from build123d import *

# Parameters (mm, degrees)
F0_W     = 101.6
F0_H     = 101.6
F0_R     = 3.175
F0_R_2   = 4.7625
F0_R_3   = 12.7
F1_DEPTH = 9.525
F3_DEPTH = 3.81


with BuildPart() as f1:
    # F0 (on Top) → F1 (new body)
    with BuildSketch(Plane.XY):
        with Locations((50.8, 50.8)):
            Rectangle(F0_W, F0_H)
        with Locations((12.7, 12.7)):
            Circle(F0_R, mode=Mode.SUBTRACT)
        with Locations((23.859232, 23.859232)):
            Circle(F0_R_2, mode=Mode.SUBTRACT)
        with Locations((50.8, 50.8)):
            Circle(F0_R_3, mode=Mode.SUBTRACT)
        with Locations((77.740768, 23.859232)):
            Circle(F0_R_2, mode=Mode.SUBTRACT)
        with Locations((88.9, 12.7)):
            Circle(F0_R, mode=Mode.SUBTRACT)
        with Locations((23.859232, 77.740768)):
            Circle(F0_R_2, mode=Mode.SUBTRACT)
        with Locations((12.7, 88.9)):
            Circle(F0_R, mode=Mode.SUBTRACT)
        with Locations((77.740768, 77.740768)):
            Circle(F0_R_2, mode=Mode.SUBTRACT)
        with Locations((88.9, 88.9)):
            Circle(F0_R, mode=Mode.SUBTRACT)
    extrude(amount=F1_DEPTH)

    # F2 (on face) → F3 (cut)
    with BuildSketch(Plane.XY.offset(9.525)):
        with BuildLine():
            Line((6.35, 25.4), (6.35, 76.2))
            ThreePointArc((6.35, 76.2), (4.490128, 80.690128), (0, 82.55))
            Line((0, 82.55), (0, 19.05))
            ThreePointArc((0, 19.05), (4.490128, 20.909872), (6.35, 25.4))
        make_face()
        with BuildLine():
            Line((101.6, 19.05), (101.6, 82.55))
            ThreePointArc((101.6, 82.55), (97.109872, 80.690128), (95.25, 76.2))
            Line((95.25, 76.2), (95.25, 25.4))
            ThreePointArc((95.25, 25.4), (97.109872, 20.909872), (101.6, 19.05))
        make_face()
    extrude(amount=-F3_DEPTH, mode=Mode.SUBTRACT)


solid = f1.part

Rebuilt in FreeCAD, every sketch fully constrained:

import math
import FreeCAD as App
import Part
import Sketcher
from FreeCAD import Vector
Q = App.Units.Quantity

doc = App.newDocument("Part")
params = doc.addObject("Spreadsheet::Sheet", "Params")
for row, (alias, value) in enumerate([
    ("sketch1_diameter", "1 in"),
    ("sketch1_diameter2", "0.25 in"),
    ("sketch1_width", "4 in"),
    ("sketch1_diameter3", "0.375 in"),
    ("pad1_length", "0.375 in"),
    ("sketch2_height", "2 in"),
    ("sketch2_radius", "0.25 in"),
    ("pocket1_length", "0.15 in"),
], start=1):
    params.set(f"A{row}", alias)
    params.set(f"B{row}", "=" + value)
    params.setAlias(f"B{row}", alias)

body = doc.addObject("PartDesign::Body", "Body")

# Sketch on XY plane
sketch1 = doc.addObject("Sketcher::SketchObject", "Sketch")
body.addObject(sketch1)
sketch1.AttachmentSupport = (doc.XY_Plane, [""])
sketch1.MapMode = "FlatFace"
sketch1.addGeometry([
    Part.LineSegment(Vector(0, 101.6, 0), Vector(0, 0, 0)),  # 0
    Part.LineSegment(Vector(0, 0, 0), Vector(101.6, 0, 0)),  # 1
    Part.LineSegment(Vector(101.6, 0, 0), Vector(101.6, 101.6, 0)),  # 2
    Part.LineSegment(Vector(101.6, 101.6, 0), Vector(0, 101.6, 0)),  # 3
    Part.Circle(Vector(12.7, 12.7, 0), Vector(0, 0, 1), 3.2),  # 4
    Part.Circle(Vector(23.9, 23.9, 0), Vector(0, 0, 1), 4.8),  # 5
    Part.Circle(Vector(50.8, 50.8, 0), Vector(0, 0, 1), 12.7),  # 6
    Part.Circle(Vector(88.9, 12.7, 0), Vector(0, 0, 1), 3.2),  # 7
    Part.Circle(Vector(77.7, 23.9, 0), Vector(0, 0, 1), 4.8),  # 8
    Part.Circle(Vector(23.9, 77.7, 0), Vector(0, 0, 1), 4.8),  # 9
    Part.Circle(Vector(12.7, 88.9, 0), Vector(0, 0, 1), 3.2),  # 10
    Part.Circle(Vector(77.7, 77.7, 0), Vector(0, 0, 1), 4.8),  # 11
    Part.Circle(Vector(88.9, 88.9, 0), Vector(0, 0, 1), 3.2),  # 12
], False)
sketch1.addConstraint([
    Sketcher.Constraint("Coincident", 0, 2, 1, 1),
    Sketcher.Constraint("Coincident", 1, 2, 2, 1),
    Sketcher.Constraint("Coincident", 2, 2, 3, 1),
    Sketcher.Constraint("Coincident", 3, 2, 0, 1),
    Sketcher.Constraint("Vertical", 0),
    Sketcher.Constraint("Horizontal", 1),
    Sketcher.Constraint("Vertical", 2),
    Sketcher.Constraint("Horizontal", 3),
    Sketcher.Constraint("Coincident", 0, 2, -1, 1),
    Sketcher.Constraint("Equal", 4, 7),
    Sketcher.Constraint("Equal", 5, 8),
    Sketcher.Constraint("Equal", 8, 9),
    Sketcher.Constraint("Equal", 7, 10),
    Sketcher.Constraint("Equal", 9, 11),
    Sketcher.Constraint("Equal", 10, 12),
    Sketcher.Constraint("Horizontal", 4, 3, 7, 3),
    Sketcher.Constraint("Horizontal", 5, 3, 8, 3),
    Sketcher.Constraint("Horizontal", 9, 3, 11, 3),
    Sketcher.Constraint("Horizontal", 10, 3, 12, 3),
    Sketcher.Constraint("Vertical", 5, 3, 9, 3),
    Sketcher.Constraint("Vertical", 4, 3, 10, 3),
    Sketcher.Constraint("Vertical", 8, 3, 11, 3),
    Sketcher.Constraint("Vertical", 7, 3, 12, 3),
    Sketcher.Constraint("Equal", 3, 0),
    Sketcher.Constraint("Diameter", 6, Q("1 in")),
    Sketcher.Constraint("Diameter", 4, Q("0.25 in")),
    Sketcher.Constraint("DistanceX", 1, 1, 1, 2, Q("4 in")),
    Sketcher.Constraint("Diameter", 5, Q("0.375 in")),
    Sketcher.Constraint("DistanceX", -1, 1, 6, 3, Q("2 in")),
    Sketcher.Constraint("DistanceY", -1, 1, 6, 3, Q("2 in")),
    Sketcher.Constraint("DistanceX", 4, 3, 7, 3, Q("3 in")),
    Sketcher.Constraint("DistanceY", 4, 3, 10, 3, Q("3 in")),
    Sketcher.Constraint("DistanceX", -1, 1, 4, 3, Q("0.5 in")),
    Sketcher.Constraint("DistanceY", -1, 1, 4, 3, Q("0.5 in")),
    Sketcher.Constraint("DistanceX", -1, 1, 5, 3, Q("23.859232 mm")),
    Sketcher.Constraint("DistanceY", -1, 1, 5, 3, Q("23.859232 mm")),
    Sketcher.Constraint("DistanceX", -1, 1, 8, 3, Q("77.740768 mm")),
    Sketcher.Constraint("DistanceY", -1, 1, 9, 3, Q("77.740768 mm")),
])
sketch1.setExpression("Constraints[24]", "Params.sketch1_diameter")
sketch1.setExpression("Constraints[25]", "Params.sketch1_diameter2")
sketch1.setExpression("Constraints[26]", "Params.sketch1_width")
sketch1.setExpression("Constraints[27]", "Params.sketch1_diameter3")
pad1 = doc.addObject("PartDesign::Pad", "Pad")
body.addObject(pad1)
pad1.Profile = sketch1
pad1.setExpression("Length", "Params.pad1_length")

# Sketch on XY plane
sketch2 = doc.addObject("Sketcher::SketchObject", "Sketch001")
body.addObject(sketch2)
sketch2.AttachmentSupport = (doc.XY_Plane, [""])
sketch2.MapMode = "FlatFace"
sketch2.AttachmentOffset = App.Placement(Vector(0, 0, 0.375 * 25.4), App.Rotation())
sketch2.addGeometry([
    Part.LineSegment(Vector(6, 25, 0), Vector(6, 76, 0)),  # 0
    Part.ArcOfCircle(Part.Circle(Vector(0, 76, 0), Vector(0, 0, 1), 6), math.radians(0), math.radians(90)),  # 1
    Part.LineSegment(Vector(0, 83, 0), Vector(0, 19, 0)),  # 2
    Part.ArcOfCircle(Part.Circle(Vector(0, 25, 0), Vector(0, 0, 1), 6), math.radians(-90), math.radians(0)),  # 3
    Part.LineSegment(Vector(102, 19, 0), Vector(102, 83, 0)),  # 4
    Part.ArcOfCircle(Part.Circle(Vector(102, 76, 0), Vector(0, 0, 1), 6), math.radians(90), math.radians(180)),  # 5
    Part.LineSegment(Vector(95, 76, 0), Vector(95, 25, 0)),  # 6
    Part.ArcOfCircle(Part.Circle(Vector(102, 25, 0), Vector(0, 0, 1), 6), math.radians(-180), math.radians(-90)),  # 7
], False)
sketch2.addConstraint([
    Sketcher.Constraint("Tangent", 0, 2, 1, 1),
    Sketcher.Constraint("Coincident", 1, 2, 2, 1),
    Sketcher.Constraint("Coincident", 2, 2, 3, 1),
    Sketcher.Constraint("Tangent", 3, 2, 0, 1),
    Sketcher.Constraint("Coincident", 4, 2, 5, 1),
    Sketcher.Constraint("Tangent", 5, 2, 6, 1),
    Sketcher.Constraint("Tangent", 6, 2, 7, 1),
    Sketcher.Constraint("Coincident", 7, 2, 4, 1),
    Sketcher.Constraint("Vertical", 0),
    Sketcher.Constraint("Vertical", 2),
    Sketcher.Constraint("Vertical", 4),
    Sketcher.Constraint("Vertical", 6),
    Sketcher.Constraint("Equal", 1, 3),
    Sketcher.Constraint("Equal", 3, 5),
    Sketcher.Constraint("Equal", 5, 7),
    Sketcher.Constraint("PointOnObject", 1, 3, -2),
    Sketcher.Constraint("PointOnObject", 1, 2, -2),
    Sketcher.Constraint("Horizontal", 1, 3, 5, 3),
    Sketcher.Constraint("Horizontal", 3, 3, 7, 3),
    Sketcher.Constraint("Vertical", 7, 3, 4, 2),
    Sketcher.Constraint("DistanceY", 0, 1, 0, 2, Q("2 in")),
    Sketcher.Constraint("Radius", 1, Q("0.25 in")),
    Sketcher.Constraint("DistanceY", -1, 1, 1, 3, Q("3 in")),
    Sketcher.Constraint("DistanceX", -1, 1, 5, 3, Q("4 in")),
])
sketch2.setExpression("Constraints[20]", "Params.sketch2_height")
sketch2.setExpression("Constraints[21]", "Params.sketch2_radius")
pocket1 = doc.addObject("PartDesign::Pocket", "Pocket")
body.addObject(pocket1)
pocket1.Profile = sketch2
pocket1.setExpression("Length", "Params.pocket1_length")

doc.recompute()
